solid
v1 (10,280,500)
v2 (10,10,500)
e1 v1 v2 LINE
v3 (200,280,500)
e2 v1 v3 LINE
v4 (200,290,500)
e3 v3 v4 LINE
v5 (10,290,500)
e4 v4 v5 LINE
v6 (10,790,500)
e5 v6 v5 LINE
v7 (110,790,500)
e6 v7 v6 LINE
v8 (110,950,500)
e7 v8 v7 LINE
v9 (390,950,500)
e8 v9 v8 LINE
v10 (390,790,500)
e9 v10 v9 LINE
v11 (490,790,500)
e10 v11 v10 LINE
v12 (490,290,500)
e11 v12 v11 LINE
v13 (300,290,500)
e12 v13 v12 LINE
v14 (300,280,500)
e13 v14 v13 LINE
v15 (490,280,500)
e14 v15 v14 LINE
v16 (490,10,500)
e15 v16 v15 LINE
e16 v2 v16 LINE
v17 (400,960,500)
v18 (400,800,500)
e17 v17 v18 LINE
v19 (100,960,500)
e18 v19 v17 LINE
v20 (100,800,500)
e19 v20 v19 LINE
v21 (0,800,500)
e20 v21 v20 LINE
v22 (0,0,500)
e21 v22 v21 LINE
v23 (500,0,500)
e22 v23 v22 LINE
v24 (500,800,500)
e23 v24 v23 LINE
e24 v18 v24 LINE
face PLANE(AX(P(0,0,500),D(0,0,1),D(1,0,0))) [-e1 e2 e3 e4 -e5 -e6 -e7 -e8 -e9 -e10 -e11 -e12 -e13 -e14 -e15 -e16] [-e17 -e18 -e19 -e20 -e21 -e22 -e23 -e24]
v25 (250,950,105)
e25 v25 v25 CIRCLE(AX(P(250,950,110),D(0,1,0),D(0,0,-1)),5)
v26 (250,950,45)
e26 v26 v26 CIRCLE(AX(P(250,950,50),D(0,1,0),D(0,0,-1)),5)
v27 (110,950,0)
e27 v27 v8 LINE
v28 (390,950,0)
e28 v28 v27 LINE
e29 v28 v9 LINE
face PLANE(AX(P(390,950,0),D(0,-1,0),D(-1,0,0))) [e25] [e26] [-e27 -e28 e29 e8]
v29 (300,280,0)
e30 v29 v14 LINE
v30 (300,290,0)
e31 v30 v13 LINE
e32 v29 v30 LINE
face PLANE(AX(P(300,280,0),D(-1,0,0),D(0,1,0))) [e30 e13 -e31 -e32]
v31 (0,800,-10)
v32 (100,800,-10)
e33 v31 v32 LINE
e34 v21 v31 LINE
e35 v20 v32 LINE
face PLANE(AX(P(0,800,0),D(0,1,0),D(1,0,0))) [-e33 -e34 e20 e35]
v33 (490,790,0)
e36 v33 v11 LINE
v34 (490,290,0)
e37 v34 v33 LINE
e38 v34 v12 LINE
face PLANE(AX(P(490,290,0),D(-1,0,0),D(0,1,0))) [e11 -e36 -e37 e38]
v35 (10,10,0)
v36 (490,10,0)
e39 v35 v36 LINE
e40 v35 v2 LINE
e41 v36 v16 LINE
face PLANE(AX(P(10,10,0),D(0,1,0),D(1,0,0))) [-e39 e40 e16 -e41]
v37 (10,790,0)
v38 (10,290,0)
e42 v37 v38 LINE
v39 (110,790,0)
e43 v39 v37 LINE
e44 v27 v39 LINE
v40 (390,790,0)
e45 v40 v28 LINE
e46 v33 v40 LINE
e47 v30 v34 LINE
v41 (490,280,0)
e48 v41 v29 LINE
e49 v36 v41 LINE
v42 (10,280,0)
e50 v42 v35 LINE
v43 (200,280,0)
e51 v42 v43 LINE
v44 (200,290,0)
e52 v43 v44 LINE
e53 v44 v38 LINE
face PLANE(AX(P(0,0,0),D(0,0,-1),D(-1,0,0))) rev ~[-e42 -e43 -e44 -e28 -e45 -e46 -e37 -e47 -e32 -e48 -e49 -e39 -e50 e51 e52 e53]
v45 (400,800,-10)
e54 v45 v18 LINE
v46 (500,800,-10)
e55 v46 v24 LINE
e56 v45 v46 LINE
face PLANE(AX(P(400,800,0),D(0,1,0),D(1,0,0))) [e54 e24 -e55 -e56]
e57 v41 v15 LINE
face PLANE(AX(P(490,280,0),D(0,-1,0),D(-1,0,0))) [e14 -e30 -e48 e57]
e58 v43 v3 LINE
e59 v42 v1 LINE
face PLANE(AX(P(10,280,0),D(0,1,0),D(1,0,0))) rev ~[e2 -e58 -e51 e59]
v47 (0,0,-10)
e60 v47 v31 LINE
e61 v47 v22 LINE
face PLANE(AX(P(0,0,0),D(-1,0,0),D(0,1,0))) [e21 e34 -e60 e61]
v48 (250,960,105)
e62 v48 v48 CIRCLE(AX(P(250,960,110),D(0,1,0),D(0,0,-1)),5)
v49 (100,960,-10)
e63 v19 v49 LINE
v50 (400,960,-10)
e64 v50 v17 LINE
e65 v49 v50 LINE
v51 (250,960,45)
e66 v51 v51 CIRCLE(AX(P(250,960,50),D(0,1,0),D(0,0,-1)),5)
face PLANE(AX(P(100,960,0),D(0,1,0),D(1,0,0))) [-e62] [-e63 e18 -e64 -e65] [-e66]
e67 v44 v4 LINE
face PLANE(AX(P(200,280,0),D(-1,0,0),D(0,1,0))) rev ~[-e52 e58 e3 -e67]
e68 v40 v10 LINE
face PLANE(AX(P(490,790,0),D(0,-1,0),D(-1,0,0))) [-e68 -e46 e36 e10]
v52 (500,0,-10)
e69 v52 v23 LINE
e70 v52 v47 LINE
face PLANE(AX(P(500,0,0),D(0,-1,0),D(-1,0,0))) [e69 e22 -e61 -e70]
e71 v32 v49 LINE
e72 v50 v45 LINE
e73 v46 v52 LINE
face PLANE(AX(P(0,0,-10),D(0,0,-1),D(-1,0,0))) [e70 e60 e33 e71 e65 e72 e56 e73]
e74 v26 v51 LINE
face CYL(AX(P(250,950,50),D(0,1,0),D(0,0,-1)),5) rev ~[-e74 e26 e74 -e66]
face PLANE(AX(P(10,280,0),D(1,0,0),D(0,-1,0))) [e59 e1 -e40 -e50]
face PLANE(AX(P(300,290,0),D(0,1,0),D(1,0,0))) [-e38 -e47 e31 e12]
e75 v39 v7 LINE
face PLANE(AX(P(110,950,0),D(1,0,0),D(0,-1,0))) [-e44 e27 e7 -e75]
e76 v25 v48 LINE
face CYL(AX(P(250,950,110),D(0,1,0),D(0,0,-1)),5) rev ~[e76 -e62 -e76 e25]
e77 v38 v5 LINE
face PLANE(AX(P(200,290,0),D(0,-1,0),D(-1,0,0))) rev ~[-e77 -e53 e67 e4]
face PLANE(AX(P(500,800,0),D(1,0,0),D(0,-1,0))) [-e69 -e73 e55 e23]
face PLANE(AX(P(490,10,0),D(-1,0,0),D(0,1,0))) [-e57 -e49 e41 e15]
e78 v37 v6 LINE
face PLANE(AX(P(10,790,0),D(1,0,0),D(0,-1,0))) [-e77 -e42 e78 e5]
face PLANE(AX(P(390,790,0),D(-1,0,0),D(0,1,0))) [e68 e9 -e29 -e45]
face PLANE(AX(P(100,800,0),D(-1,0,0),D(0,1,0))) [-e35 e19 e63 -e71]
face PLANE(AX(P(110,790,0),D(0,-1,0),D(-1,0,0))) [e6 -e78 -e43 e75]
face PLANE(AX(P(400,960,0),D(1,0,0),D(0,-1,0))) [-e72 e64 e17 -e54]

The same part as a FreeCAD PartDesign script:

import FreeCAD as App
import Part
import Sketcher

V = App.Vector

doc = App.newDocument("Part")
body = doc.addObject("PartDesign::Body", "Body")

# Sketch on XY plane
sketch1 = doc.addObject("Sketcher::SketchObject", "Sketch")
body.addObject(sketch1)
sketch1.AttachmentSupport = (doc.XY_Plane, [""])
sketch1.MapMode = "FlatFace"
sketch1.addGeometry(Part.LineSegment(V(0, 800, 0), V(0, 0, 0)), False)
sketch1.addGeometry(Part.LineSegment(V(0, 0, 0), V(500, 0, 0)), False)
sketch1.addGeometry(Part.LineSegment(V(500, 0, 0), V(500, 800, 0)), False)
sketch1.addGeometry(Part.LineSegment(V(500, 800, 0), V(400, 800, 0)), False)
sketch1.addGeometry(Part.LineSegment(V(400, 800, 0), V(400, 960, 0)), False)
sketch1.addGeometry(Part.LineSegment(V(400, 960, 0), V(100, 960, 0)), False)
sketch1.addGeometry(Part.LineSegment(V(100, 960, 0), V(100, 800, 0)), False)
sketch1.addGeometry(Part.LineSegment(V(100, 800, 0), V(0, 800, 0)), False)
sketch1.addGeometry(Part.LineSegment(V(110, 950, 0), V(390, 950, 0)), False)
sketch1.addGeometry(Part.LineSegment(V(390, 950, 0), V(390, 790, 0)), False)
sketch1.addGeometry(Part.LineSegment(V(390, 790, 0), V(490, 790, 0)), False)
sketch1.addGeometry(Part.LineSegment(V(490, 790, 0), V(490, 290, 0)), False)
sketch1.addGeometry(Part.LineSegment(V(490, 290, 0), V(300, 290, 0)), False)
sketch1.addGeometry(Part.LineSegment(V(300, 290, 0), V(300, 280, 0)), False)
sketch1.addGeometry(Part.LineSegment(V(300, 280, 0), V(490, 280, 0)), False)
sketch1.addGeometry(Part.LineSegment(V(490, 280, 0), V(490, 10, 0)), False)
sketch1.addGeometry(Part.LineSegment(V(490, 10, 0), V(10, 10, 0)), False)
sketch1.addGeometry(Part.LineSegment(V(10, 10, 0), V(10, 280, 0)), False)
sketch1.addGeometry(Part.LineSegment(V(10, 280, 0), V(200, 280, 0)), False)
sketch1.addGeometry(Part.LineSegment(V(200, 280, 0), V(200, 290, 0)), False)
sketch1.addGeometry(Part.LineSegment(V(200, 290, 0), V(10, 290, 0)), False)
sketch1.addGeometry(Part.LineSegment(V(10, 290, 0), V(10, 790, 0)), False)
sketch1.addGeometry(Part.LineSegment(V(10, 790, 0), V(110, 790, 0)), False)
sketch1.addGeometry(Part.LineSegment(V(110, 790, 0), V(110, 950, 0)), False)
sketch1.addConstraint(Sketcher.Constraint("Coincident", 0, 2, 1, 1))
sketch1.addConstraint(Sketcher.Constraint("Coincident", 1, 2, 2, 1))
sketch1.addConstraint(Sketcher.Constraint("Coincident", 2, 2, 3, 1))
sketch1.addConstraint(Sketcher.Constraint("Coincident", 3, 2, 4, 1))
sketch1.addConstraint(Sketcher.Constraint("Coincident", 4, 2, 5, 1))
sketch1.addConstraint(Sketcher.Constraint("Coincident", 5, 2, 6, 1))
sketch1.addConstraint(Sketcher.Constraint("Coincident", 6, 2, 7, 1))
sketch1.addConstraint(Sketcher.Constraint("Coincident", 7, 2, 0, 1))
sketch1.addConstraint(Sketcher.Constraint("Coincident", 8, 2, 9, 1))
sketch1.addConstraint(Sketcher.Constraint("Coincident", 9, 2, 10, 1))
sketch1.addConstraint(Sketcher.Constraint("Coincident", 10, 2, 11, 1))
sketch1.addConstraint(Sketcher.Constraint("Coincident", 11, 2, 12, 1))
sketch1.addConstraint(Sketcher.Constraint("Coincident", 12, 2, 13, 1))
sketch1.addConstraint(Sketcher.Constraint("Coincident", 13, 2, 14, 1))
sketch1.addConstraint(Sketcher.Constraint("Coincident", 14, 2, 15, 1))
sketch1.addConstraint(Sketcher.Constraint("Coincident", 15, 2, 16, 1))
sketch1.addConstraint(Sketcher.Constraint("Coincident", 16, 2, 17, 1))
sketch1.addConstraint(Sketcher.Constraint("Coincident", 17, 2, 18, 1))
sketch1.addConstraint(Sketcher.Constraint("Coincident", 18, 2, 19, 1))
sketch1.addConstraint(Sketcher.Constraint("Coincident", 19, 2, 20, 1))
sketch1.addConstraint(Sketcher.Constraint("Coincident", 20, 2, 21, 1))
sketch1.addConstraint(Sketcher.Constraint("Coincident", 21, 2, 22, 1))
sketch1.addConstraint(Sketcher.Constraint("Coincident", 22, 2, 23, 1))
sketch1.addConstraint(Sketcher.Constraint("Coincident", 23, 2, 8, 1))
sketch1.addConstraint(Sketcher.Constraint("Vertical", 0))
sketch1.addConstraint(Sketcher.Constraint("Horizontal", 1))
sketch1.addConstraint(Sketcher.Constraint("Vertical", 2))
sketch1.addConstraint(Sketcher.Constraint("Horizontal", 3))
sketch1.addConstraint(Sketcher.Constraint("Vertical", 4))
sketch1.addConstraint(Sketcher.Constraint("Horizontal", 5))
sketch1.addConstraint(Sketcher.Constraint("Vertical", 6))
sketch1.addConstraint(Sketcher.Constraint("Horizontal", 7))
sketch1.addConstraint(Sketcher.Constraint("Horizontal", 8))
sketch1.addConstraint(Sketcher.Constraint("Vertical", 9))
sketch1.addConstraint(Sketcher.Constraint("Horizontal", 10))
sketch1.addConstraint(Sketcher.Constraint("Vertical", 11))
sketch1.addConstraint(Sketcher.Constraint("Horizontal", 12))
sketch1.addConstraint(Sketcher.Constraint("Vertical", 13))
sketch1.addConstraint(Sketcher.Constraint("Horizontal", 14))
sketch1.addConstraint(Sketcher.Constraint("Vertical", 15))
sketch1.addConstraint(Sketcher.Constraint("Horizontal", 16))
sketch1.addConstraint(Sketcher.Constraint("Vertical", 17))
sketch1.addConstraint(Sketcher.Constraint("Horizontal", 18))
sketch1.addConstraint(Sketcher.Constraint("Vertical", 19))
sketch1.addConstraint(Sketcher.Constraint("Horizontal", 20))
sketch1.addConstraint(Sketcher.Constraint("Vertical", 21))
sketch1.addConstraint(Sketcher.Constraint("Horizontal", 22))
sketch1.addConstraint(Sketcher.Constraint("Vertical", 23))
sketch1.addConstraint(Sketcher.Constraint("Coincident", 0, 2, -1, 1))
sketch1.addConstraint(Sketcher.Constraint("Horizontal", 3, 2, 6, 2))
sketch1.addConstraint(Sketcher.Constraint("Horizontal", 14, 2, 17, 2))
sketch1.addConstraint(Sketcher.Constraint("Horizontal", 12, 2, 19, 2))
sketch1.addConstraint(Sketcher.Constraint("Horizontal", 10, 2, 21, 2))
sketch1.addConstraint(Sketcher.Constraint("Vertical", 11, 2, 14, 2))
sketch1.addConstraint(Sketcher.Constraint("Vertical", 17, 2, 20, 2))
sketch1.addConstraint(Sketcher.Constraint("Equal", 3, 7))
sketch1.addConstraint(Sketcher.Constraint("Equal", 7, 10))
sketch1.addConstraint(Sketcher.Constraint("Equal", 14, 18))
sketch1.addConstraint(Sketcher.Constraint("Equal", 10, 22))
sketch1.addConstraint(Sketcher.Constraint("Equal", 6, 9))
sketch1.addConstraint(Sketcher.Constraint("Equal", 1, 11))
sketch1.addConstraint(Sketcher.Constraint("DistanceX", 1, 1, 1, 2, 500.0))
sketch1.addConstraint(Sketcher.Constraint("DistanceX", 3, 2, 3, 1, 100.0))
sketch1.addConstraint(Sketcher.Constraint("DistanceX", 12, 2, 12, 1, 190.0))
sketch1.addConstraint(Sketcher.Constraint("DistanceY", 0, 2, 0, 1, 800.0))
sketch1.addConstraint(Sketcher.Constraint("DistanceY", 4, 1, 4, 2, 160.0))
sketch1.addConstraint(Sketcher.Constraint("DistanceY", 13, 2, 13, 1, 10.0))
sketch1.addConstraint(Sketcher.Constraint("DistanceX", -1, 1, 12, 2, 300.0))
sketch1.addConstraint(Sketcher.Constraint("DistanceY", -1, 1, 15, 2, 10.0))
sketch1.addConstraint(Sketcher.Constraint("DistanceX", -1, 1, 16, 2, 10.0))
sketch1.addConstraint(Sketcher.Constraint("DistanceY", 8, 2, 4, 2, 10.0))
pad1 = doc.addObject("PartDesign::Pad", "Pad")
body.addObject(pad1)
pad1.Profile = sketch1
pad1.Length = 500

# Sketch on XY plane
sketch2 = doc.addObject("Sketcher::SketchObject", "Sketch001")
body.addObject(sketch2)
sketch2.AttachmentSupport = (doc.XY_Plane, [""])
sketch2.MapMode = "FlatFace"
sketch2.addGeometry(Part.LineSegment(V(500, 0, 0), V(0, 0, 0)), False)
sketch2.addGeometry(Part.LineSegment(V(0, 0, 0), V(0, 800, 0)), False)
sketch2.addGeometry(Part.LineSegment(V(0, 800, 0), V(100, 800, 0)), False)
sketch2.addGeometry(Part.LineSegment(V(100, 800, 0), V(100, 960, 0)), False)
sketch2.addGeometry(Part.LineSegment(V(100, 960, 0), V(400, 960, 0)), False)
sketch2.addGeometry(Part.LineSegment(V(400, 960, 0), V(400, 800, 0)), False)
sketch2.addGeometry(Part.LineSegment(V(400, 800, 0), V(500, 800, 0)), False)
sketch2.addGeometry(Part.LineSegment(V(500, 800, 0), V(500, 0, 0)), False)
sketch2.addConstraint(Sketcher.Constraint("Coincident", 0, 2, 1, 1))
sketch2.addConstraint(Sketcher.Constraint("Coincident", 1, 2, 2, 1))
sketch2.addConstraint(Sketcher.Constraint("Coincident", 2, 2, 3, 1))
sketch2.addConstraint(Sketcher.Constraint("Coincident", 3, 2, 4, 1))
sketch2.addConstraint(Sketcher.Constraint("Coincident", 4, 2, 5, 1))
sketch2.addConstraint(Sketcher.Constraint("Coincident", 5, 2, 6, 1))
sketch2.addConstraint(Sketcher.Constraint("Coincident", 6, 2, 7, 1))
sketch2.addConstraint(Sketcher.Constraint("Coincident", 7, 2, 0, 1))
sketch2.addConstraint(Sketcher.Constraint("Horizontal", 0))
sketch2.addConstraint(Sketcher.Constraint("Vertical", 1))
sketch2.addConstraint(Sketcher.Constraint("Horizontal", 2))
sketch2.addConstraint(Sketcher.Constraint("Vertical", 3))
sketch2.addConstraint(Sketcher.Constraint("Horizontal", 4))
sketch2.addConstraint(Sketcher.Constraint("Vertical", 5))
sketch2.addConstraint(Sketcher.Constraint("Horizontal", 6))
sketch2.addConstraint(Sketcher.Constraint("Vertical", 7))
sketch2.addConstraint(Sketcher.Constraint("Coincident", 0, 2, -1, 1))
sketch2.addConstraint(Sketcher.Constraint("Horizontal", 2, 2, 5, 2))
sketch2.addConstraint(Sketcher.Constraint("Equal", 2, 6))
sketch2.addConstraint(Sketcher.Constraint("DistanceX", 0, 2, 0, 1, 500.0))
sketch2.addConstraint(Sketcher.Constraint("DistanceX", 2, 1, 2, 2, 100.0))
sketch2.addConstraint(Sketcher.Constraint("DistanceY", 1, 1, 1, 2, 800.0))
sketch2.addConstraint(Sketcher.Constraint("DistanceY", 3, 1, 3, 2, 160.0))
pad2 = doc.addObject("PartDesign::Pad", "Pad001")
body.addObject(pad2)
pad2.Profile = sketch2
pad2.Length = 10
pad2.Reversed = True

# Sketch on XZ plane
sketch3 = doc.addObject("Sketcher::SketchObject", "Sketch002")
body.addObject(sketch3)
sketch3.AttachmentSupport = (doc.XZ_Plane, [""])
sketch3.MapMode = "FlatFace"
sketch3.AttachmentOffset = App.Placement(V(0, 0, -950), App.Rotation())
sketch3.addGeometry(Part.Circle(V(250, 110, 0), V(0, 0, 1), 5), False)
sketch3.addGeometry(Part.Circle(V(250, 50, 0), V(0, 0, 1), 5), False)
sketch3.addConstraint(Sketcher.Constraint("Equal", 0, 1))
sketch3.addConstraint(Sketcher.Constraint("Vertical", 0, 3, 1, 3))
sketch3.addConstraint(Sketcher.Constraint("Diameter", 0, 10.0))
sketch3.addConstraint(Sketcher.Constraint("DistanceX", -1, 1, 0, 3, 250.0))
sketch3.addConstraint(Sketcher.Constraint("DistanceY", -1, 1, 0, 3, 110.0))
sketch3.addConstraint(Sketcher.Constraint("DistanceY", -1, 1, 1, 3, 50.0))
doc.recompute()
hole = doc.addObject("PartDesign::Hole", "Hole")
body.addObject(hole)
hole.Profile = sketch3
hole.ThreadType = "None"
hole.Diameter = 10
hole.DepthType = "ThroughAll"

doc.recompute()
